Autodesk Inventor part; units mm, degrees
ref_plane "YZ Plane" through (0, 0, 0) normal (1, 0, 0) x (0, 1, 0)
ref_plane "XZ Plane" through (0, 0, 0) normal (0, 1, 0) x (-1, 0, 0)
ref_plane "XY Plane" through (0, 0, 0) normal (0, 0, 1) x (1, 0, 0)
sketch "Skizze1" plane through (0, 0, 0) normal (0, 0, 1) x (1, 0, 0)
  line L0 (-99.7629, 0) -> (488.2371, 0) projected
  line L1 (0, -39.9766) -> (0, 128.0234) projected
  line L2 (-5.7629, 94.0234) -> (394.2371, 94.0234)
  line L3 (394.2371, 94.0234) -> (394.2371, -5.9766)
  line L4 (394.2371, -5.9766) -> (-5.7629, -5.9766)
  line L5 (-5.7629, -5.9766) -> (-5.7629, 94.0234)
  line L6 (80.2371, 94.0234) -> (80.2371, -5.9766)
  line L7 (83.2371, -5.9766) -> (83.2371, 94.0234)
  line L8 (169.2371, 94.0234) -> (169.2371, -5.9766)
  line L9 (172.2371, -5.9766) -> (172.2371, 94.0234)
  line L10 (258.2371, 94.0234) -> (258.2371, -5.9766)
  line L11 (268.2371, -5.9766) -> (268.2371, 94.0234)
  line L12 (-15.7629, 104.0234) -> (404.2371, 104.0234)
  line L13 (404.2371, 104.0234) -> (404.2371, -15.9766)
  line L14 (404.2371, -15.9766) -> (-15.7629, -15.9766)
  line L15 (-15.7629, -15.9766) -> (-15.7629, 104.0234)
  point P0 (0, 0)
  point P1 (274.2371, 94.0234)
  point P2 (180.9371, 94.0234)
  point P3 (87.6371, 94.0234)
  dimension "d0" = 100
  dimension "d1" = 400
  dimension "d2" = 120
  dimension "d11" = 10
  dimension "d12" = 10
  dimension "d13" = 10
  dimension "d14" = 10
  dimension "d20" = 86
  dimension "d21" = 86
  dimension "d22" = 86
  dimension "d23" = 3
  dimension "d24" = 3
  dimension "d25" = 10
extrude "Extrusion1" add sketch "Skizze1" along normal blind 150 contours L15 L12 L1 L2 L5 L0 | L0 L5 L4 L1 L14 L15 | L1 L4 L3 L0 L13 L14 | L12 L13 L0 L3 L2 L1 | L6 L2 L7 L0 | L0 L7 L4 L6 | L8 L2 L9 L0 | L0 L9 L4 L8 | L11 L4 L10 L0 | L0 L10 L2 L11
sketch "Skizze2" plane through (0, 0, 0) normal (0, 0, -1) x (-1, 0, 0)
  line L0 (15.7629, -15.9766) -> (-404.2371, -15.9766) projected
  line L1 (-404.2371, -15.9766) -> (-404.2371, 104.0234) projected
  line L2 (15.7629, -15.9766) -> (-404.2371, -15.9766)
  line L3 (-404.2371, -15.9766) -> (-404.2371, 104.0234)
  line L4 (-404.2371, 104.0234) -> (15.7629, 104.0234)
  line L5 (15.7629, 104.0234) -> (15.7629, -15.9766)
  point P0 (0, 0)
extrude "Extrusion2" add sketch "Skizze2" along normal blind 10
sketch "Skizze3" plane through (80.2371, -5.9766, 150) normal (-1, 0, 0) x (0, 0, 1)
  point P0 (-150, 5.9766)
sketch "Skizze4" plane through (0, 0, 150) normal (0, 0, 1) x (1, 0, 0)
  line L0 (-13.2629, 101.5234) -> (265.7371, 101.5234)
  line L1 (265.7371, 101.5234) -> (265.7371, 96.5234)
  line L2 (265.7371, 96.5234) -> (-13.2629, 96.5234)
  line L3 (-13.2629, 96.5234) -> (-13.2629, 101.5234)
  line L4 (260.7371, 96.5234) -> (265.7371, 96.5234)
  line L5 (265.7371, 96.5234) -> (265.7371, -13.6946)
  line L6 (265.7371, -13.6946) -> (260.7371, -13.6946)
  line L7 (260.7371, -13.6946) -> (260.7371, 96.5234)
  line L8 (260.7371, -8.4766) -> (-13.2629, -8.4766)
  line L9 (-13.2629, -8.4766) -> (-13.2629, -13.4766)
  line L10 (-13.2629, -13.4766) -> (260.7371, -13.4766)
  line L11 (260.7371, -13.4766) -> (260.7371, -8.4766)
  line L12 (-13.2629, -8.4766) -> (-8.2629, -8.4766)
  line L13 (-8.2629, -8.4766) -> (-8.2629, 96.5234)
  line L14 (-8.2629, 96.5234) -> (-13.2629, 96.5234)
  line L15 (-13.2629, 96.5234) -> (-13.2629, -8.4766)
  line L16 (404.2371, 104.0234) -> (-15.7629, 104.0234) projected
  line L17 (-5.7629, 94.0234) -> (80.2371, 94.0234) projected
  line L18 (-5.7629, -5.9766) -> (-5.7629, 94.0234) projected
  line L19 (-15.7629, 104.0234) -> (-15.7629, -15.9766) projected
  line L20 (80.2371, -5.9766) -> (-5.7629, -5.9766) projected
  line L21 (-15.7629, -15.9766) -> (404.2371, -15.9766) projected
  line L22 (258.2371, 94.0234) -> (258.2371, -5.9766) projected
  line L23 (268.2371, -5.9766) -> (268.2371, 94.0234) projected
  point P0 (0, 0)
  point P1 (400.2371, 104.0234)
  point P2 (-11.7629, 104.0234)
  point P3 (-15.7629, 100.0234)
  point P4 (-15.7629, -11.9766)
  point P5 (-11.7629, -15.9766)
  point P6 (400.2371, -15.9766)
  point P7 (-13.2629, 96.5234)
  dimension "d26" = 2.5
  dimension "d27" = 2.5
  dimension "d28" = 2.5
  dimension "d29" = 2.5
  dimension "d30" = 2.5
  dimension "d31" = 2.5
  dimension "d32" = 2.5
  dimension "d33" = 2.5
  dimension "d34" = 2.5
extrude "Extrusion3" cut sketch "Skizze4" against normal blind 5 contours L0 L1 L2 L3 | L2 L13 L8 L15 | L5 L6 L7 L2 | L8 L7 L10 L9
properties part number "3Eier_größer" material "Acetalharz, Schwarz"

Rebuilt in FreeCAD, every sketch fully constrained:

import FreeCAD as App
import Part
import Sketcher

doc = App.newDocument("Part")
body = doc.addObject("PartDesign::Body", "Body")

sketch1 = doc.addObject("Sketcher::SketchObject", "Sketch")
body.addObject(sketch1)
sketch1.AttachmentSupport = (doc.XY_Plane, [""])
sketch1.MapMode = "FlatFace"
sketch1.addGeometry(Part.LineSegment(App.Vector(-15.7629, 104.0234, 0), App.Vector(-15.7629, -15.9766, 0)), False)
sketch1.addGeometry(Part.LineSegment(App.Vector(-15.7629, -15.9766, 0), App.Vector(404.2371, -15.9766, 0)), False)
sketch1.addGeometry(Part.LineSegment(App.Vector(404.2371, -15.9766, 0), App.Vector(404.2371, 104.0234, 0)), False)
sketch1.addGeometry(Part.LineSegment(App.Vector(404.2371, 104.0234, 0), App.Vector(-15.7629, 104.0234, 0)), False)
sketch1.addGeometry(Part.LineSegment(App.Vector(-5.7629, 94.0234, 0), App.Vector(80.2371, 94.0234, 0)), False)
sketch1.addGeometry(Part.LineSegment(App.Vector(80.2371, 94.0234, 0), App.Vector(80.2371, -5.9766, 0)), False)
sketch1.addGeometry(Part.LineSegment(App.Vector(80.2371, -5.9766, 0), App.Vector(-5.7629, -5.9766, 0)), False)
sketch1.addGeometry(Part.LineSegment(App.Vector(-5.7629, -5.9766, 0), App.Vector(-5.7629, 94.0234, 0)), False)
sketch1.addGeometry(Part.LineSegment(App.Vector(394.2371, 94.0234, 0), App.Vector(394.2371, -5.9766, 0)), False)
sketch1.addGeometry(Part.LineSegment(App.Vector(394.2371, -5.9766, 0), App.Vector(268.2371, -5.9766, 0)), False)
sketch1.addGeometry(Part.LineSegment(App.Vector(268.2371, -5.9766, 0), App.Vector(268.2371, 94.0234, 0)), False)
sketch1.addGeometry(Part.LineSegment(App.Vector(268.2371, 94.0234, 0), App.Vector(394.2371, 94.0234, 0)), False)
sketch1.addGeometry(Part.LineSegment(App.Vector(172.2371, 94.0234, 0), App.Vector(258.2371, 94.0234, 0)), False)
sketch1.addGeometry(Part.LineSegment(App.Vector(258.2371, 94.0234, 0), App.Vector(258.2371, -5.9766, 0)), False)
sketch1.addGeometry(Part.LineSegment(App.Vector(258.2371, -5.9766, 0), App.Vector(172.2371, -5.9766, 0)), False)
sketch1.addGeometry(Part.LineSegment(App.Vector(172.2371, -5.9766, 0), App.Vector(172.2371, 94.0234, 0)), False)
sketch1.addGeometry(Part.LineSegment(App.Vector(83.2371, 94.0234, 0), App.Vector(169.2371, 94.0234, 0)), False)
sketch1.addGeometry(Part.LineSegment(App.Vector(169.2371, 94.0234, 0), App.Vector(169.2371, -5.9766, 0)), False)
sketch1.addGeometry(Part.LineSegment(App.Vector(169.2371, -5.9766, 0), App.Vector(83.2371, -5.9766, 0)), False)
sketch1.addGeometry(Part.LineSegment(App.Vector(83.2371, -5.9766, 0), App.Vector(83.2371, 94.0234, 0)), False)
sketch1.addConstraint(Sketcher.Constraint("Coincident", 0, 2, 1, 1))
sketch1.addConstraint(Sketcher.Constraint("Coincident", 1, 2, 2, 1))
sketch1.addConstraint(Sketcher.Constraint("Coincident", 2, 2, 3, 1))
sketch1.addConstraint(Sketcher.Constraint("Coincident", 3, 2, 0, 1))
sketch1.addConstraint(Sketcher.Constraint("Coincident", 4, 2, 5, 1))
sketch1.addConstraint(Sketcher.Constraint("Coincident", 5, 2, 6, 1))
sketch1.addConstraint(Sketcher.Constraint("Coincident", 6, 2, 7, 1))
sketch1.addConstraint(Sketcher.Constraint("Coincident", 7, 2, 4, 1))
sketch1.addConstraint(Sketcher.Constraint("Coincident", 8, 2, 9, 1))
sketch1.addConstraint(Sketcher.Constraint("Coincident", 9, 2, 10, 1))
sketch1.addConstraint(Sketcher.Constraint("Coincident", 10, 2, 11, 1))
sketch1.addConstraint(Sketcher.Constraint("Coincident", 11, 2, 8, 1))
sketch1.addConstraint(Sketcher.Constraint("Coincident", 12, 2, 13, 1))
sketch1.addConstraint(Sketcher.Constraint("Coincident", 13, 2, 14, 1))
sketch1.addConstraint(Sketcher.Constraint("Coincident", 14, 2, 15, 1))
sketch1.addConstraint(Sketcher.Constraint("Coincident", 15, 2, 12, 1))
sketch1.addConstraint(Sketcher.Constraint("Coincident", 16, 2, 17, 1))
sketch1.addConstraint(Sketcher.Constraint("Coincident", 17, 2, 18, 1))
sketch1.addConstraint(Sketcher.Constraint("Coincident", 18, 2, 19, 1))
sketch1.addConstraint(Sketcher.Constraint("Coincident", 19, 2, 16, 1))
sketch1.addConstraint(Sketcher.Constraint("Vertical", 0))
sketch1.addConstraint(Sketcher.Constraint("Horizontal", 1))
sketch1.addConstraint(Sketcher.Constraint("Vertical", 2))
sketch1.addConstraint(Sketcher.Constraint("Horizontal", 3))
sketch1.addConstraint(Sketcher.Constraint("Horizontal", 4))
sketch1.addConstraint(Sketcher.Constraint("Vertical", 5))
sketch1.addConstraint(Sketcher.Constraint("Horizontal", 6))
sketch1.addConstraint(Sketcher.Constraint("Vertical", 7))
sketch1.addConstraint(Sketcher.Constraint("Vertical", 8))
sketch1.addConstraint(Sketcher.Constraint("Horizontal", 9))
sketch1.addConstraint(Sketcher.Constraint("Vertical", 10))
sketch1.addConstraint(Sketcher.Constraint("Horizontal", 11))
sketch1.addConstraint(Sketcher.Constraint("Horizontal", 12))
sketch1.addConstraint(Sketcher.Constraint("Vertical", 13))
sketch1.addConstraint(Sketcher.Constraint("Horizontal", 14))
sketch1.addConstraint(Sketcher.Constraint("Vertical", 15))
sketch1.addConstraint(Sketcher.Constraint("Horizontal", 16))
sketch1.addConstraint(Sketcher.Constraint("Vertical", 17))
sketch1.addConstraint(Sketcher.Constraint("Horizontal", 18))
sketch1.addConstraint(Sketcher.Constraint("Vertical", 19))
sketch1.addConstraint(Sketcher.Constraint("Horizontal", 6, 2, 8, 2))
sketch1.addConstraint(Sketcher.Constraint("Horizontal", 7, 2, 10, 2))
sketch1.addConstraint(Sketcher.Constraint("Horizontal", 11, 2, 12, 2))
sketch1.addConstraint(Sketcher.Constraint("Horizontal", 9, 2, 13, 2))
sketch1.addConstraint(Sketcher.Constraint("Horizontal", 15, 2, 16, 2))
sketch1.addConstraint(Sketcher.Constraint("Horizontal", 14, 2, 17, 2))
sketch1.addConstraint(Sketcher.Constraint("Equal", 6, 12))
sketch1.addConstraint(Sketcher.Constraint("Equal", 14, 16))
sketch1.addConstraint(Sketcher.Constraint("DistanceX", 4, 1, 4, 2, 86.0))
sketch1.addConstraint(Sketcher.Constraint("DistanceY", 0, 2, 0, 1, 120.0))
sketch1.addConstraint(Sketcher.Constraint("DistanceY", 5, 2, 5, 1, 100.0))
sketch1.addConstraint(Sketcher.Constraint("DistanceY", 4, 2, 3, 2, 10.0))
sketch1.addConstraint(Sketcher.Constraint("DistanceX", 0, 2, 6, 2, 10.0))
sketch1.addConstraint(Sketcher.Constraint("DistanceX", 8, 2, 1, 2, 10.0))
sketch1.addConstraint(Sketcher.Constraint("DistanceX", 6, 2, 8, 2, 400.0))
sketch1.addConstraint(Sketcher.Constraint("DistanceX", 12, 2, 10, 2, 10.0))
sketch1.addConstraint(Sketcher.Constraint("DistanceX", 16, 2, 15, 2, 3.0))
sketch1.addConstraint(Sketcher.Constraint("DistanceX", 5, 2, 18, 2, 3.0))
sketch1.addConstraint(Sketcher.Constraint("DistanceX", 0, 2, -1, 1, 15.763))
sketch1.addConstraint(Sketcher.Constraint("DistanceY", 0, 2, -1, 1, 15.9766))
pad1 = doc.addObject("PartDesign::Pad", "Pad")
body.addObject(pad1)
pad1.Profile = sketch1
pad1.Length = 150

sketch2 = doc.addObject("Sketcher::SketchObject", "Sketch001")
body.addObject(sketch2)
sketch2.AttachmentSupport = (doc.XY_Plane, [""])
sketch2.MapMode = "FlatFace"
sketch2.addGeometry(Part.LineSegment(App.Vector(404.2371, -15.9766, 0), App.Vector(-15.7629, -15.9766, 0)), False)
sketch2.addGeometry(Part.LineSegment(App.Vector(-15.7629, -15.9766, 0), App.Vector(-15.7629, 104.0234, 0)), False)
sketch2.addGeometry(Part.LineSegment(App.Vector(-15.7629, 104.0234, 0), App.Vector(404.2371, 104.0234, 0)), False)
sketch2.addGeometry(Part.LineSegment(App.Vector(404.2371, 104.0234, 0), App.Vector(404.2371, -15.9766, 0)), False)
sketch2.addConstraint(Sketcher.Constraint("Coincident", 0, 2, 1, 1))
sketch2.addConstraint(Sketcher.Constraint("Coincident", 1, 2, 2, 1))
sketch2.addConstraint(Sketcher.Constraint("Coincident", 2, 2, 3, 1))
sketch2.addConstraint(Sketcher.Constraint("Coincident", 3, 2, 0, 1))
sketch2.addConstraint(Sketcher.Constraint("Horizontal", 0))
sketch2.addConstraint(Sketcher.Constraint("Vertical", 1))
sketch2.addConstraint(Sketcher.Constraint("Horizontal", 2))
sketch2.addConstraint(Sketcher.Constraint("Vertical", 3))
sketch2.addConstraint(Sketcher.Constraint("DistanceX", 0, 2, 0, 1, 420.0))
sketch2.addConstraint(Sketcher.Constraint("DistanceY", 1, 1, 1, 2, 120.0))
sketch2.addConstraint(Sketcher.Constraint("DistanceX", 0, 2, -1, 1, 15.763))
sketch2.addConstraint(Sketcher.Constraint("DistanceY", 0, 2, -1, 1, 15.9766))
pad2 = doc.addObject("PartDesign::Pad", "Pad001")
body.addObject(pad2)
pad2.Profile = sketch2
pad2.Length = 10
pad2.Reversed = True

sketch3 = doc.addObject("Sketcher::SketchObject", "Sketch002")
body.addObject(sketch3)
sketch3.AttachmentSupport = (doc.XY_Plane, [""])
sketch3.MapMode = "FlatFace"
sketch3.AttachmentOffset = App.Placement(App.Vector(0, 0, 150), App.Rotation())
sketch3.addGeometry(Part.LineSegment(App.Vector(265.7371, 101.5234, 0), App.Vector(-13.2629, 101.5234, 0)), False)
sketch3.addGeometry(Part.LineSegment(App.Vector(-13.2629, 101.5234, 0), App.Vector(-13.2629, -13.4766, 0)), False)
sketch3.addGeometry(Part.LineSegment(App.Vector(-13.2629, -13.4766, 0), App.Vector(260.7371, -13.4766, 0)), False)
sketch3.addGeometry(Part.LineSegment(App.Vector(260.7371, -13.4766, 0), App.Vector(260.7371, -13.6946, 0)), False)
sketch3.addGeometry(Part.LineSegment(App.Vector(260.7371, -13.6946, 0), App.Vector(265.7371, -13.6946, 0)), False)
sketch3.addGeometry(Part.LineSegment(App.Vector(265.7371, -13.6946, 0), App.Vector(265.7371, 101.5234, 0)), False)
sketch3.addGeometry(Part.LineSegment(App.Vector(-8.2629, 96.5234, 0), App.Vector(260.7371, 96.5234, 0)), False)
sketch3.addGeometry(Part.LineSegment(App.Vector(260.7371, 96.5234, 0), App.Vector(260.7371, -8.4766, 0)), False)
sketch3.addGeometry(Part.LineSegment(App.Vector(260.7371, -8.4766, 0), App.Vector(-8.2629, -8.4766, 0)), False)
sketch3.addGeometry(Part.LineSegment(App.Vector(-8.2629, -8.4766, 0), App.Vector(-8.2629, 96.5234, 0)), False)
sketch3.addConstraint(Sketcher.Constraint("Coincident", 0, 2, 1, 1))
sketch3.addConstraint(Sketcher.Constraint("Coincident", 1, 2, 2, 1))
sketch3.addConstraint(Sketcher.Constraint("Coincident", 2, 2, 3, 1))
sketch3.addConstraint(Sketcher.Constraint("Coincident", 3, 2, 4, 1))
sketch3.addConstraint(Sketcher.Constraint("Coincident", 4, 2, 5, 1))
sketch3.addConstraint(Sketcher.Constraint("Coincident", 5, 2, 0, 1))
sketch3.addConstraint(Sketcher.Constraint("Coincident", 6, 2, 7, 1))
sketch3.addConstraint(Sketcher.Constraint("Coincident", 7, 2, 8, 1))
sketch3.addConstraint(Sketcher.Constraint("Coincident", 8, 2, 9, 1))
sketch3.addConstraint(Sketcher.Constraint("Coincident", 9, 2, 6, 1))
sketch3.addConstraint(Sketcher.Constraint("Horizontal", 0))
sketch3.addConstraint(Sketcher.Constraint("Vertical", 1))
sketch3.addConstraint(Sketcher.Constraint("Horizontal", 2))
sketch3.addConstraint(Sketcher.Constraint("Vertical", 3))
sketch3.addConstraint(Sketcher.Constraint("Horizontal", 4))
sketch3.addConstraint(Sketcher.Constraint("Vertical", 5))
sketch3.addConstraint(Sketcher.Constraint("Horizontal", 6))
sketch3.addConstraint(Sketcher.Constraint("Vertical", 7))
sketch3.addConstraint(Sketcher.Constraint("Horizontal", 8))
sketch3.addConstraint(Sketcher.Constraint("Vertical", 9))
sketch3.addConstraint(Sketcher.Constraint("Vertical", 3, 2, 6, 2))
sketch3.addConstraint(Sketcher.Constraint("DistanceX", 0, 2, 0, 1, 279.0))
sketch3.addConstraint(Sketcher.Constraint("DistanceX", 2, 1, 2, 2, 274.0))
sketch3.addConstraint(Sketcher.Constraint("DistanceX", 6, 1, 6, 2, 269.0))
sketch3.addConstraint(Sketcher.Constraint("DistanceY", 1, 2, 1, 1, 115.0))
sketch3.addConstraint(Sketcher.Constraint("DistanceY", 7, 2, 7, 1, 105.0))
sketch3.addConstraint(Sketcher.Constraint("DistanceY", 6, 2, 5, 2, 5.0))
sketch3.addConstraint(Sketcher.Constraint("DistanceY", 3, 2, 3, 1, 0.218))
sketch3.addConstraint(Sketcher.Constraint("DistanceX", 0, 2, -1, 1, 13.263))
sketch3.addConstraint(Sketcher.Constraint("DistanceY", -1, 1, 0, 2, 101.5234))
pocket1 = doc.addObject("PartDesign::Pocket", "Pocket")
body.addObject(pocket1)
pocket1.Profile = sketch3
pocket1.Length = 5

doc.recompute()
